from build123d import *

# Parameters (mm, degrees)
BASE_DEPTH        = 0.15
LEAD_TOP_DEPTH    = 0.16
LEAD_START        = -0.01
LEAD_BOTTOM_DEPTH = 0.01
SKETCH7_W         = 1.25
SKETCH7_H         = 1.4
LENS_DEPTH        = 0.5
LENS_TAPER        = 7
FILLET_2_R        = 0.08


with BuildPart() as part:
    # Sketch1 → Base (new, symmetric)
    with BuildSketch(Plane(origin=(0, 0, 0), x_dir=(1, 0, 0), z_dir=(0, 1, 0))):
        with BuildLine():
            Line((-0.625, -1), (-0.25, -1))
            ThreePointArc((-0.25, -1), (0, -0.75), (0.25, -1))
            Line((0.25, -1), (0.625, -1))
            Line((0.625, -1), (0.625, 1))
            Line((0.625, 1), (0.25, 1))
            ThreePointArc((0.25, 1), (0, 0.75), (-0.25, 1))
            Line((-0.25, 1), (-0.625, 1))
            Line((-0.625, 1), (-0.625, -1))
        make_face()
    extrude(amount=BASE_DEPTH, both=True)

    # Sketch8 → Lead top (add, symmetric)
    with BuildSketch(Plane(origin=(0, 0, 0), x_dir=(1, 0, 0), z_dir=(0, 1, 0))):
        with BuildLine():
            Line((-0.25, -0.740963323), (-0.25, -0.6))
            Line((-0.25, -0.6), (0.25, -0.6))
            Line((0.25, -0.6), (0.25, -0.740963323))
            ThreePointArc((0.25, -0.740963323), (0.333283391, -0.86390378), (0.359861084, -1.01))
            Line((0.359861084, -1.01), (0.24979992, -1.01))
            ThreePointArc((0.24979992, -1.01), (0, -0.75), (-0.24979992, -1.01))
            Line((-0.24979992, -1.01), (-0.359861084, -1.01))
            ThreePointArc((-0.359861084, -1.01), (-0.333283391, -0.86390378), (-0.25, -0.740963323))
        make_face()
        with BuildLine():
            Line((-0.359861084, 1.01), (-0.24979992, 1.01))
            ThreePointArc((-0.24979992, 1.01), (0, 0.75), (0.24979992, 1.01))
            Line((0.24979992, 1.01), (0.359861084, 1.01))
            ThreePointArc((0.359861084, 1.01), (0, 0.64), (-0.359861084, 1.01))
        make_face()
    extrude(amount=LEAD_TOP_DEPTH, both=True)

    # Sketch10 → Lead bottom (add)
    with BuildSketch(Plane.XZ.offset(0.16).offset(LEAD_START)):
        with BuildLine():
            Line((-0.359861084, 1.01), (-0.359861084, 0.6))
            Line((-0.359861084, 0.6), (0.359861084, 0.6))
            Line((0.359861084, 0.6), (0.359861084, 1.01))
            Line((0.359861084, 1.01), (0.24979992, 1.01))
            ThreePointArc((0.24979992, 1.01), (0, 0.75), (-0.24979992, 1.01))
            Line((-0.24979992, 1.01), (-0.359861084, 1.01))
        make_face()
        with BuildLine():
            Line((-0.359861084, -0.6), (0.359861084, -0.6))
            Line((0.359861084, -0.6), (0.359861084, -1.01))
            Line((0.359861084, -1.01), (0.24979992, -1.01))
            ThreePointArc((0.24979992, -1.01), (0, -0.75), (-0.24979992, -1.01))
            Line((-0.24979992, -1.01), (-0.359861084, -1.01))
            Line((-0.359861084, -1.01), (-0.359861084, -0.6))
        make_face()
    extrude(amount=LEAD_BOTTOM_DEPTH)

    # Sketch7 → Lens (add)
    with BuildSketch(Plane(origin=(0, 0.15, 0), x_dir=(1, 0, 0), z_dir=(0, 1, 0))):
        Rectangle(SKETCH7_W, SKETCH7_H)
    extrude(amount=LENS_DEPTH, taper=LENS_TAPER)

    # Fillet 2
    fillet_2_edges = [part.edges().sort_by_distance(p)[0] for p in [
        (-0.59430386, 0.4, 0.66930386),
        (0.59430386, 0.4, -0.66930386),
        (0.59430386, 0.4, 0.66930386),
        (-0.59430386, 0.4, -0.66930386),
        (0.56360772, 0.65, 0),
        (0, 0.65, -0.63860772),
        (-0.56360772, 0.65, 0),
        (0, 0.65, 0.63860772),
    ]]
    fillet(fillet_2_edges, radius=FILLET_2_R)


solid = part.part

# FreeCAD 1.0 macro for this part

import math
import FreeCAD as App
import Part
import Sketcher
from FreeCAD import Vector


def edges_at(feature, points):
    """Names of the edges that pass closest to the given points."""
    edges = feature.Shape.Edges
    near = lambda p: min(range(len(edges)), key=lambda i: edges[i].distToShape(Part.Vertex(*p))[0])
    return sorted({f"Edge{near(p) + 1}" for p in points})

doc = App.newDocument("Part")
body = doc.addObject("PartDesign::Body", "Body")

# Sketch on XZ plane
sketch1 = body.newObject("Sketcher::SketchObject", "Sketch")
sketch1.AttachmentSupport = (doc.getObject("XZ_Plane"), [""])
sketch1.MapMode = "FlatFace"
sketch1.addGeometry([
    Part.LineSegment(Vector(-0.625, 1, 0), Vector(-0.25, 1, 0)),  # 0
    Part.ArcOfCircle(Part.Circle(Vector(0, 1, 0), Vector(0, 0, 1), 0.25), math.radians(180), math.radians(360)),  # 1
    Part.LineSegment(Vector(0.25, 1, 0), Vector(0.625, 1, 0)),  # 2
    Part.LineSegment(Vector(0.625, 1, 0), Vector(0.625, -1, 0)),  # 3
    Part.LineSegment(Vector(0.625, -1, 0), Vector(0.25, -1, 0)),  # 4
    Part.ArcOfCircle(Part.Circle(Vector(0, -1, 0), Vector(0, 0, 1), 0.25), math.radians(0), math.radians(180)),  # 5
    Part.LineSegment(Vector(-0.25, -1, 0), Vector(-0.625, -1, 0)),  # 6
    Part.LineSegment(Vector(-0.625, -1, 0), Vector(-0.625, 1, 0)),  # 7
], False)
sketch1.addConstraint([
    Sketcher.Constraint("Coincident", 0, 2, 1, 1),
    Sketcher.Constraint("Coincident", 1, 2, 2, 1),
    Sketcher.Constraint("Coincident", 2, 2, 3, 1),
    Sketcher.Constraint("Coincident", 3, 2, 4, 1),
    Sketcher.Constraint("Coincident", 4, 2, 5, 1),
    Sketcher.Constraint("Coincident", 5, 2, 6, 1),
    Sketcher.Constraint("Coincident", 6, 2, 7, 1),
    Sketcher.Constraint("Coincident", 7, 2, 0, 1),
    Sketcher.Constraint("Horizontal", 0),
    Sketcher.Constraint("Horizontal", 2),
    Sketcher.Constraint("Vertical", 3),
    Sketcher.Constraint("Horizontal", 4),
    Sketcher.Constraint("Horizontal", 6),
    Sketcher.Constraint("Vertical", 7),
    Sketcher.Constraint("Equal", 1, 5),
    Sketcher.Constraint("Symmetric", 1, 3, 5, 3, -1, 1),
    Sketcher.Constraint("Symmetric", 2, 2, 6, 2, -1, 1),
    Sketcher.Constraint("Symmetric", 0, 2, 1, 2, -2),
    Sketcher.Constraint("Horizontal", 1, 3, 0, 2),
    Sketcher.Constraint("Horizontal", 5, 3, 3, 2),
    Sketcher.Constraint("DistanceY", 3, 2, 3, 1, 2.0),
    Sketcher.Constraint("Radius", 1, 0.25),
    Sketcher.Constraint("DistanceX", 0, 1, 0, 2, 0.375),
])
pad1 = body.newObject("PartDesign::Pad", "Pad")
pad1.Profile = sketch1
pad1.Length = 0.3
pad1.Midplane = True

# Sketch on XZ plane
sketch2 = body.newObject("Sketcher::SketchObject", "Sketch001")
sketch2.AttachmentSupport = (doc.getObject("XZ_Plane"), [""])
sketch2.MapMode = "FlatFace"
sketch2.addGeometry([
    Part.LineSegment(Vector(-0.25, 0.6, 0), Vector(-0.25, 0.740963, 0)),  # 0
    Part.ArcOfCircle(Part.Circle(Vector(0, 1, 0), Vector(0, 0, 1), 0.36), math.radians(178.408246), math.radians(226.017037)),  # 1
    Part.LineSegment(Vector(-0.359861, 1.01, 0), Vector(-0.2498, 1.01, 0)),  # 2
    Part.ArcOfCircle(Part.Circle(Vector(0, 1, 0), Vector(0, 0, 1), 0.25), math.radians(177.707557), math.radians(362.292443)),  # 3
    Part.LineSegment(Vector(0.2498, 1.01, 0), Vector(0.359861, 1.01, 0)),  # 4
    Part.ArcOfCircle(Part.Circle(Vector(0, 1, 0), Vector(0, 0, 1), 0.36), math.radians(-46.017037), math.radians(1.591754)),  # 5
    Part.LineSegment(Vector(0.25, 0.740963, 0), Vector(0.25, 0.6, 0)),  # 6
    Part.LineSegment(Vector(0.25, 0.6, 0), Vector(-0.25, 0.6, 0)),  # 7
    Part.LineSegment(Vector(-0.2498, -1.01, 0), Vector(-0.359861, -1.01, 0)),  # 8
    Part.ArcOfCircle(Part.Circle(Vector(0, -1, 0), Vector(0, 0, 1), 0.36), math.radians(-1.591754), math.radians(181.591754)),  # 9
    Part.LineSegment(Vector(0.359861, -1.01, 0), Vector(0.2498, -1.01, 0)),  # 10
    Part.ArcOfCircle(Part.Circle(Vector(0, -1, 0), Vector(0, 0, 1), 0.25), math.radians(-2.292443), math.radians(182.292443)),  # 11
], False)
sketch2.addConstraint([
    Sketcher.Constraint("Coincident", 0, 2, 1, 2),
    Sketcher.Constraint("Coincident", 1, 1, 2, 1),
    Sketcher.Constraint("Coincident", 2, 2, 3, 1),
    Sketcher.Constraint("Coincident", 3, 2, 4, 1),
    Sketcher.Constraint("Coincident", 4, 2, 5, 2),
    Sketcher.Constraint("Coincident", 5, 1, 6, 1),
    Sketcher.Constraint("Coincident", 6, 2, 7, 1),
    Sketcher.Constraint("Coincident", 7, 2, 0, 1),
    Sketcher.Constraint("Coincident", 8, 2, 9, 2),
    Sketcher.Constraint("Coincident", 9, 1, 10, 1),
    Sketcher.Constraint("Coincident", 10, 2, 11, 1),
    Sketcher.Constraint("Coincident", 11, 2, 8, 1),
    Sketcher.Constraint("Vertical", 0),
    Sketcher.Constraint("Horizontal", 2),
    Sketcher.Constraint("Horizontal", 4),
    Sketcher.Constraint("Vertical", 6),
    Sketcher.Constraint("Horizontal", 7),
    Sketcher.Constraint("Horizontal", 8),
    Sketcher.Constraint("Horizontal", 10),
    Sketcher.Constraint("Coincident", 3, 3, 1, 3),
    Sketcher.Constraint("Coincident", 5, 3, 1, 3),
    Sketcher.Constraint("Coincident", 11, 3, 9, 3),
    Sketcher.Constraint("Equal", 1, 5),
    Sketcher.Constraint("Equal", 5, 9),
    Sketcher.Constraint("Equal", 3, 11),
    Sketcher.Constraint("Symmetric", 1, 3, 9, 3, -1, 1),
    Sketcher.Constraint("Symmetric", 2, 2, 3, 2, -2),
    Sketcher.Constraint("Horizontal", 0, 2, 5, 1),
    Sketcher.Constraint("Horizontal", 8, 2, 9, 1),
    Sketcher.Constraint("Vertical", 1, 1, 8, 2),
    Sketcher.Constraint("Radius", 1, 0.36),
    Sketcher.Constraint("Radius", 3, 0.25),
    Sketcher.Constraint("DistanceX", 7, 2, 7, 1, 0.5),
    Sketcher.Constraint("DistanceY", -1, 1, 1, 3, 1.0),
    Sketcher.Constraint("DistanceY", -1, 1, 6, 2, 0.6),
    Sketcher.Constraint("DistanceY", -1, 1, 1, 1, 1.01),
])
pad2 = body.newObject("PartDesign::Pad", "Pad001")
pad2.Profile = sketch2
pad2.Length = 0.32
pad2.Midplane = True

# Sketch on XZ plane
sketch3 = body.newObject("Sketcher::SketchObject", "Sketch002")
sketch3.AttachmentSupport = (doc.getObject("XZ_Plane"), [""])
sketch3.MapMode = "FlatFace"
sketch3.AttachmentOffset = App.Placement(Vector(0, 0, 0.15), App.Rotation())
sketch3.addGeometry([
    Part.LineSegment(Vector(-0.359861, 1.01, 0), Vector(-0.359861, 0.6, 0)),  # 0
    Part.LineSegment(Vector(-0.359861, 0.6, 0), Vector(0.359861, 0.6, 0)),  # 1
    Part.LineSegment(Vector(0.359861, 0.6, 0), Vector(0.359861, 1.01, 0)),  # 2
    Part.LineSegment(Vector(0.359861, 1.01, 0), Vector(0.2498, 1.01, 0)),  # 3
    Part.ArcOfCircle(Part.Circle(Vector(0, 1, 0), Vector(0, 0, 1), 0.25), math.radians(177.707557), math.radians(362.292443)),  # 4
    Part.LineSegment(Vector(-0.2498, 1.01, 0), Vector(-0.359861, 1.01, 0)),  # 5
    Part.LineSegment(Vector(0.359861, -0.6, 0), Vector(-0.359861, -0.6, 0)),  # 6
    Part.LineSegment(Vector(-0.359861, -0.6, 0), Vector(-0.359861, -1.01, 0)),  # 7
    Part.LineSegment(Vector(-0.359861, -1.01, 0), Vector(-0.2498, -1.01, 0)),  # 8
    Part.ArcOfCircle(Part.Circle(Vector(0, -1, 0), Vector(0, 0, 1), 0.25), math.radians(-2.292443), math.radians(182.292443)),  # 9
    Part.LineSegment(Vector(0.2498, -1.01, 0), Vector(0.359861, -1.01, 0)),  # 10
    Part.LineSegment(Vector(0.359861, -1.01, 0), Vector(0.359861, -0.6, 0)),  # 11
], False)
sketch3.addConstraint([
    Sketcher.Constraint("Coincident", 0, 2, 1, 1),
    Sketcher.Constraint("Coincident", 1, 2, 2, 1),
    Sketcher.Constraint("Coincident", 2, 2, 3, 1),
    Sketcher.Constraint("Coincident", 3, 2, 4, 2),
    Sketcher.Constraint("Coincident", 4, 1, 5, 1),
    Sketcher.Constraint("Coincident", 5, 2, 0, 1),
    Sketcher.Constraint("Coincident", 6, 2, 7, 1),
    Sketcher.Constraint("Coincident", 7, 2, 8, 1),
    Sketcher.Constraint("Coincident", 8, 2, 9, 2),
    Sketcher.Constraint("Coincident", 9, 1, 10, 1),
    Sketcher.Constraint("Coincident", 10, 2, 11, 1),
    Sketcher.Constraint("Coincident", 11, 2, 6, 1),
    Sketcher.Constraint("Vertical", 0),
    Sketcher.Constraint("Horizontal", 1),
    Sketcher.Constraint("Vertical", 2),
    Sketcher.Constraint("Horizontal", 3),
    Sketcher.Constraint("Horizontal", 5),
    Sketcher.Constraint("Horizontal", 6),
    Sketcher.Constraint("Vertical", 7),
    Sketcher.Constraint("Horizontal", 8),
    Sketcher.Constraint("Horizontal", 10),
    Sketcher.Constraint("Vertical", 11),
    Sketcher.Constraint("Equal", 4, 9),
    Sketcher.Constraint("Symmetric", 4, 3, 9, 3, -1, 1),
    Sketcher.Constraint("Symmetric", 1, 2, 6, 2, -1, 1),
    Sketcher.Constraint("Symmetric", 5, 2, 10, 2, -1, 1),
    Sketcher.Constraint("Symmetric", 3, 2, 4, 1, -2),
    Sketcher.Constraint("Symmetric", 7, 2, 10, 2, -2),
    Sketcher.Constraint("Radius", 4, 0.25),
    Sketcher.Constraint("DistanceY", -1, 1, 4, 3, 1.0),
    Sketcher.Constraint("DistanceY", 0, 2, 0, 1, 0.41),
    Sketcher.Constraint("DistanceY", -1, 1, 0, 2, 0.6),
    Sketcher.Constraint("DistanceX", 3, 2, 3, 1, 0.110061),
])
pad3 = body.newObject("PartDesign::Pad", "Pad002")
pad3.Profile = sketch3
pad3.Length = 0.01

# Sketch on XZ plane
sketch4 = body.newObject("Sketcher::SketchObject", "Sketch003")
sketch4.AttachmentSupport = (doc.getObject("XZ_Plane"), [""])
sketch4.MapMode = "FlatFace"
sketch4.AttachmentOffset = App.Placement(Vector(0, 0, -0.15), App.Rotation())
sketch4.addGeometry([
    Part.LineSegment(Vector(-0.625, -0.7, 0), Vector(-0.625, 0.7, 0)),
    Part.LineSegment(Vector(-0.625, 0.7, 0), Vector(0.625, 0.7, 0)),
    Part.LineSegment(Vector(0.625, 0.7, 0), Vector(0.625, -0.7, 0)),
    Part.LineSegment(Vector(0.625, -0.7, 0), Vector(-0.625, -0.7, 0)),
], False)
sketch4.addConstraint([
    Sketcher.Constraint("Coincident", 0, 2, 1, 1),
    Sketcher.Constraint("Coincident", 1, 2, 2, 1),
    Sketcher.Constraint("Coincident", 2, 2, 3, 1),
    Sketcher.Constraint("Coincident", 3, 2, 0, 1),
    Sketcher.Constraint("Vertical", 0),
    Sketcher.Constraint("Horizontal", 1),
    Sketcher.Constraint("Vertical", 2),
    Sketcher.Constraint("Horizontal", 3),
    Sketcher.Constraint("Symmetric", 0, 2, 2, 2, -1, 1),
    Sketcher.Constraint("DistanceY", 0, 1, 0, 2, 1.4),
    Sketcher.Constraint("DistanceX", 1, 1, 1, 2, 1.25),
])
pad4 = body.newObject("PartDesign::Pad", "Pad003")
pad4.Profile = sketch4
pad4.Length = 0.5
pad4.Reversed = True
pad4.TaperAngle = -7
doc.recompute()

fillet = body.newObject("PartDesign::Fillet", "Fillet")
fillet.Base = (pad4, edges_at(pad4, [
    (-0.594, 0.4, 0.669),
    (0.594, 0.4, -0.669),
    (0.594, 0.4, 0.669),
    (-0.594, 0.4, -0.669),
    (0.564, 0.65, 0),
    (0, 0.65, -0.639),
    (-0.564, 0.65, 0),
    (0, 0.65, 0.639),
]))
fillet.Radius = 0.08

doc.recompute()
